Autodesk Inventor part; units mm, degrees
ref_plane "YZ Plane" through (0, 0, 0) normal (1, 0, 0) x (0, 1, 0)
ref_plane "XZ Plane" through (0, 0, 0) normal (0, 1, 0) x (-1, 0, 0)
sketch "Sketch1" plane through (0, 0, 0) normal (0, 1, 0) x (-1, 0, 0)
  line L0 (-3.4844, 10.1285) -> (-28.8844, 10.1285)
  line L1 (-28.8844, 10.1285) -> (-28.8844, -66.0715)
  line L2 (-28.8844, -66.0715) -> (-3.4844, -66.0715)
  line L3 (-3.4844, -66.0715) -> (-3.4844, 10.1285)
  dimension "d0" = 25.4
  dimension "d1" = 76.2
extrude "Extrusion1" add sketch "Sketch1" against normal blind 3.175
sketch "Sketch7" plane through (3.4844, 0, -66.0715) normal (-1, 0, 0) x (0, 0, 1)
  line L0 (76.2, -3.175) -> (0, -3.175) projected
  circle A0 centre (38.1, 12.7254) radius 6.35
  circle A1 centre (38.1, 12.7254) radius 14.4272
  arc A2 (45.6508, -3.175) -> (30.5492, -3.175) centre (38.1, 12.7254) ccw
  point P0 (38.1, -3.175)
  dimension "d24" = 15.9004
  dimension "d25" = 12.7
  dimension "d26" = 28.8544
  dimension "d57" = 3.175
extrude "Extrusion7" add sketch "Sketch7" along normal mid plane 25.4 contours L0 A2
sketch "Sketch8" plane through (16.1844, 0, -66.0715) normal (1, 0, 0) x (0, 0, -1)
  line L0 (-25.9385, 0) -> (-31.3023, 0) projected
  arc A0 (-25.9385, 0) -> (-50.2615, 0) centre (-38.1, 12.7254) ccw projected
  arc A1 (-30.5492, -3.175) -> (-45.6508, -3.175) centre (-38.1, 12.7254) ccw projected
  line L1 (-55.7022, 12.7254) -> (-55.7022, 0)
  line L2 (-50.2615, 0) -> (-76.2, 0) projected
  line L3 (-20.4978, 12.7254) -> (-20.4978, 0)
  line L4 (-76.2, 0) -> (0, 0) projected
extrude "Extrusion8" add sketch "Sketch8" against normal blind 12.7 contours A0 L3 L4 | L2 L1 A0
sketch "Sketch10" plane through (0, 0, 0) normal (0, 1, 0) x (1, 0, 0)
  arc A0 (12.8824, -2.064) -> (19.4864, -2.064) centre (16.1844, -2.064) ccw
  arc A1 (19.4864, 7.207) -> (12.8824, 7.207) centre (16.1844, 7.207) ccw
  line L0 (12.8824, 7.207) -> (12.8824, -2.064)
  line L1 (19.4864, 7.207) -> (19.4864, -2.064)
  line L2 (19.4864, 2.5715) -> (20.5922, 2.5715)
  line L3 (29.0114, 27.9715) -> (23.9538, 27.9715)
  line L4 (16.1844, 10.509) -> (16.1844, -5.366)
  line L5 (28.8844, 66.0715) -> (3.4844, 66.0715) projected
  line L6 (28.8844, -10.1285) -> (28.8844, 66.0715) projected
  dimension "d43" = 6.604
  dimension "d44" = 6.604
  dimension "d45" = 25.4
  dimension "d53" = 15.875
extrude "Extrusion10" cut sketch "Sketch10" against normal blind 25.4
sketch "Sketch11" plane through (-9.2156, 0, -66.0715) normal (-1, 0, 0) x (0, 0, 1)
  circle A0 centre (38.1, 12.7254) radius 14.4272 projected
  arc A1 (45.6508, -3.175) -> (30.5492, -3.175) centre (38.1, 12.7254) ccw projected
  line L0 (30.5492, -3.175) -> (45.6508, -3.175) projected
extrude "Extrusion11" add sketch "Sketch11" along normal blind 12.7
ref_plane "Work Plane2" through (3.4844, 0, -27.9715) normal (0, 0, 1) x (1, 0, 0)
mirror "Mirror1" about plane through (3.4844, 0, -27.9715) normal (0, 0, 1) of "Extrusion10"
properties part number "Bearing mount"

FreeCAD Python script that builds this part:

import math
import FreeCAD as App
import Part
import Sketcher
Q = App.Units.Quantity


def add_polygon(sketch, points):
    """Adds a closed chain of lines whose ends are joined by coincident constraints."""
    first, n = sketch.GeometryCount, len(points)
    for a, b in zip(points, points[1:] + points[:1]):
        sketch.addGeometry(Part.LineSegment(App.Vector(*a, 0), App.Vector(*b, 0)), False)
    for i in range(n):
        sketch.addConstraint(Sketcher.Constraint("Coincident", first + i, 2, first + (i + 1) % n, 1))

doc = App.newDocument("Part")
body = doc.addObject("PartDesign::Body", "Body")

# Sketch on XZ plane
sketch1 = body.newObject("Sketcher::SketchObject", "Sketch")
sketch1.AttachmentSupport = (doc.getObject("XZ_Plane"), [""])
sketch1.MapMode = "FlatFace"
add_polygon(sketch1, [(3, -66), (3, 10), (29, 10), (29, -66)])  # lines 0-3
sketch1.addConstraint([
    Sketcher.Constraint("Vertical", 0),
    Sketcher.Constraint("Horizontal", 1),
    Sketcher.Constraint("Vertical", 2),
    Sketcher.Constraint("Horizontal", 3),
    Sketcher.Constraint("DistanceX", 1, 1, 1, 2, Q("1 in")),
    Sketcher.Constraint("DistanceY", 0, 1, 0, 2, Q("3 in")),
    Sketcher.Constraint("DistanceX", -1, 1, 0, 2, Q("3.4844 mm")),
    Sketcher.Constraint("DistanceY", -1, 1, 0, 2, Q("10.1285 mm")),
])
pad1 = body.newObject("PartDesign::Pad", "Pad")
pad1.Profile = sketch1
pad1.Length = Q("0.125 in")

# Sketch on YZ plane
sketch2 = body.newObject("Sketcher::SketchObject", "Sketch001")
sketch2.AttachmentSupport = (doc.getObject("YZ_Plane"), [""])
sketch2.MapMode = "FlatFace"
sketch2.AttachmentOffset = App.Placement(App.Vector(0, 0, 3.4844), App.Rotation())
sketch2.addGeometry([
    Part.LineSegment(App.Vector(-3, -36, 0), App.Vector(-3, -20, 0)),
    Part.ArcOfCircle(Part.Circle(App.Vector(13, -28, 0), App.Vector(0, 0, 1), 18), math.radians(-155), math.radians(155)),
    Part.Circle(App.Vector(13, -28, 0), App.Vector(0, 0, 1), 14),
], False)
sketch2.addConstraint([
    Sketcher.Constraint("Coincident", 0, 1, 1, 1),
    Sketcher.Constraint("Coincident", 1, 2, 0, 2),
    Sketcher.Constraint("Vertical", 0),
    Sketcher.Constraint("Coincident", 2, 3, 1, 3),
    Sketcher.Constraint("Diameter", 2, Q("1.136 in")),
    Sketcher.Constraint("DistanceX", 0, 1, -1, 1, Q("0.125 in")),
    Sketcher.Constraint("Radius", 1, Q("0.693 in")),
    Sketcher.Constraint("DistanceX", 0, 1, 1, 3, Q("0.626 in")),
    Sketcher.Constraint("DistanceY", 1, 3, -1, 1, Q("27.9715 mm")),
])
pad2 = body.newObject("PartDesign::Pad", "Pad001")
pad2.Profile = sketch2
pad2.Length = Q("1 in")
pad2.Midplane = True

# Sketch on YZ plane
sketch3 = body.newObject("Sketcher::SketchObject", "Sketch002")
sketch3.AttachmentSupport = (doc.getObject("YZ_Plane"), [""])
sketch3.MapMode = "FlatFace"
sketch3.AttachmentOffset = App.Placement(App.Vector(0, 0, 16.1844), App.Rotation())
sketch3.addGeometry([
    Part.ArcOfCircle(Part.Circle(App.Vector(13, -28, 0), App.Vector(0, 0, 1), 18), math.radians(-136), math.radians(-90)),  # 0
    Part.LineSegment(App.Vector(0, -40, 0), App.Vector(0, -46, 0)),  # 1
    Part.LineSegment(App.Vector(0, -46, 0), App.Vector(13, -46, 0)),  # 2
    Part.LineSegment(App.Vector(0, -10, 0), App.Vector(0, -16, 0)),  # 3
    Part.ArcOfCircle(Part.Circle(App.Vector(13, -28, 0), App.Vector(0, 0, 1), 18), math.radians(90), math.radians(136)),  # 4
    Part.LineSegment(App.Vector(13, -10, 0), App.Vector(0, -10, 0)),  # 5
], False)
sketch3.addConstraint([
    Sketcher.Constraint("Coincident", 0, 1, 1, 1),
    Sketcher.Constraint("Coincident", 1, 2, 2, 1),
    Sketcher.Constraint("Tangent", 2, 2, 0, 2),
    Sketcher.Constraint("Coincident", 3, 2, 4, 2),
    Sketcher.Constraint("Tangent", 4, 1, 5, 1),
    Sketcher.Constraint("Coincident", 5, 2, 3, 1),
    Sketcher.Constraint("Vertical", 1),
    Sketcher.Constraint("Horizontal", 2),
    Sketcher.Constraint("Vertical", 3),
    Sketcher.Constraint("Horizontal", 5),
    Sketcher.Constraint("Coincident", 4, 3, 0, 3),
    Sketcher.Constraint("Equal", 0, 4),
    Sketcher.Constraint("PointOnObject", 0, 1, -2),
    Sketcher.Constraint("PointOnObject", 3, 2, -2),
    Sketcher.Constraint("Radius", 0, Q("0.693 in")),
    Sketcher.Constraint("DistanceX", 2, 1, 2, 2, Q("0.501 in")),
    Sketcher.Constraint("DistanceY", 0, 3, -1, 1, Q("27.9715 mm")),
])
pad3 = body.newObject("PartDesign::Pad", "Pad002")
pad3.Profile = sketch3
pad3.Length = Q("0.5 in")
pad3.Reversed = True

# Sketch on XZ plane
sketch4 = body.newObject("Sketcher::SketchObject", "Sketch003")
sketch4.AttachmentSupport = (doc.getObject("XZ_Plane"), [""])
sketch4.MapMode = "FlatFace"
sketch4.addGeometry([
    Part.LineSegment(App.Vector(12.9, -7.2, 0), App.Vector(12.9, 2.1, 0)),
    Part.ArcOfCircle(Part.Circle(App.Vector(16.2, 2.1, 0), App.Vector(0, 0, 1), 3.3), math.radians(0), math.radians(180)),
    Part.LineSegment(App.Vector(19.5, 2.1, 0), App.Vector(19.5, -7.2, 0)),
    Part.ArcOfCircle(Part.Circle(App.Vector(16.2, -7.2, 0), App.Vector(0, 0, 1), 3.3), math.radians(180), math.radians(360)),
], False)
sketch4.addConstraint([
    Sketcher.Constraint("Tangent", 0, 2, 1, 2),
    Sketcher.Constraint("Tangent", 1, 1, 2, 1),
    Sketcher.Constraint("Tangent", 2, 2, 3, 2),
    Sketcher.Constraint("Tangent", 3, 1, 0, 1),
    Sketcher.Constraint("Vertical", 0),
    Sketcher.Constraint("Vertical", 2),
    Sketcher.Constraint("Radius", 1, Q("0.13 in")),
    Sketcher.Constraint("DistanceY", 0, 1, 0, 2, Q("0.365 in")),
    Sketcher.Constraint("DistanceX", -1, 1, 1, 3, Q("16.1844 mm")),
    Sketcher.Constraint("DistanceY", -1, 1, 1, 3, Q("2.064 mm")),
])
pocket1 = body.newObject("PartDesign::Pocket", "Pocket")
pocket1.Profile = sketch4
pocket1.Length = Q("1 in")
pocket1.Reversed = True

# Sketch on YZ plane
sketch5 = body.newObject("Sketcher::SketchObject", "Sketch004")
sketch5.AttachmentSupport = (doc.getObject("YZ_Plane"), [""])
sketch5.MapMode = "FlatFace"
sketch5.AttachmentOffset = App.Placement(App.Vector(0, 0, -9.2156), App.Rotation())
sketch5.addGeometry([
    Part.LineSegment(App.Vector(-3, -36, 0), App.Vector(-3, -20, 0)),
    Part.ArcOfCircle(Part.Circle(App.Vector(13, -28, 0), App.Vector(0, 0, 1), 18), math.radians(-155), math.radians(155)),
    Part.Circle(App.Vector(13, -28, 0), App.Vector(0, 0, 1), 14),
], False)
sketch5.addConstraint([
    Sketcher.Constraint("Coincident", 0, 1, 1, 1),
    Sketcher.Constraint("Coincident", 1, 2, 0, 2),
    Sketcher.Constraint("Vertical", 0),
    Sketcher.Constraint("Coincident", 2, 3, 1, 3),
    Sketcher.Constraint("Diameter", 2, Q("1.136 in")),
    Sketcher.Constraint("Radius", 1, Q("0.693 in")),
    Sketcher.Constraint("DistanceX", -1, 1, 1, 3, Q("0.501 in")),
    Sketcher.Constraint("DistanceX", 0, 1, -1, 1, Q("0.125 in")),
    Sketcher.Constraint("DistanceY", 1, 3, -1, 1, Q("27.9715 mm")),
])
pad4 = body.newObject("PartDesign::Pad", "Pad003")
pad4.Profile = sketch5
pad4.Length = Q("0.5 in")
pad4.Reversed = True
doc.recompute()

datumplane = body.newObject("PartDesign::Plane", "DatumPlane")
datumplane.AttachmentSupport = (doc.getObject("XY_Plane"), [""])
datumplane.MapMode = "FlatFace"
datumplane.AttachmentOffset = App.Placement(App.Vector(0, 0, -27.9715), App.Rotation())
mirrored = body.newObject("PartDesign::Mirrored", "Mirrored")
mirrored.Originals = [pocket1]
mirrored.MirrorPlane = (datumplane, [""])
body.Tip = mirrored

doc.recompute()
